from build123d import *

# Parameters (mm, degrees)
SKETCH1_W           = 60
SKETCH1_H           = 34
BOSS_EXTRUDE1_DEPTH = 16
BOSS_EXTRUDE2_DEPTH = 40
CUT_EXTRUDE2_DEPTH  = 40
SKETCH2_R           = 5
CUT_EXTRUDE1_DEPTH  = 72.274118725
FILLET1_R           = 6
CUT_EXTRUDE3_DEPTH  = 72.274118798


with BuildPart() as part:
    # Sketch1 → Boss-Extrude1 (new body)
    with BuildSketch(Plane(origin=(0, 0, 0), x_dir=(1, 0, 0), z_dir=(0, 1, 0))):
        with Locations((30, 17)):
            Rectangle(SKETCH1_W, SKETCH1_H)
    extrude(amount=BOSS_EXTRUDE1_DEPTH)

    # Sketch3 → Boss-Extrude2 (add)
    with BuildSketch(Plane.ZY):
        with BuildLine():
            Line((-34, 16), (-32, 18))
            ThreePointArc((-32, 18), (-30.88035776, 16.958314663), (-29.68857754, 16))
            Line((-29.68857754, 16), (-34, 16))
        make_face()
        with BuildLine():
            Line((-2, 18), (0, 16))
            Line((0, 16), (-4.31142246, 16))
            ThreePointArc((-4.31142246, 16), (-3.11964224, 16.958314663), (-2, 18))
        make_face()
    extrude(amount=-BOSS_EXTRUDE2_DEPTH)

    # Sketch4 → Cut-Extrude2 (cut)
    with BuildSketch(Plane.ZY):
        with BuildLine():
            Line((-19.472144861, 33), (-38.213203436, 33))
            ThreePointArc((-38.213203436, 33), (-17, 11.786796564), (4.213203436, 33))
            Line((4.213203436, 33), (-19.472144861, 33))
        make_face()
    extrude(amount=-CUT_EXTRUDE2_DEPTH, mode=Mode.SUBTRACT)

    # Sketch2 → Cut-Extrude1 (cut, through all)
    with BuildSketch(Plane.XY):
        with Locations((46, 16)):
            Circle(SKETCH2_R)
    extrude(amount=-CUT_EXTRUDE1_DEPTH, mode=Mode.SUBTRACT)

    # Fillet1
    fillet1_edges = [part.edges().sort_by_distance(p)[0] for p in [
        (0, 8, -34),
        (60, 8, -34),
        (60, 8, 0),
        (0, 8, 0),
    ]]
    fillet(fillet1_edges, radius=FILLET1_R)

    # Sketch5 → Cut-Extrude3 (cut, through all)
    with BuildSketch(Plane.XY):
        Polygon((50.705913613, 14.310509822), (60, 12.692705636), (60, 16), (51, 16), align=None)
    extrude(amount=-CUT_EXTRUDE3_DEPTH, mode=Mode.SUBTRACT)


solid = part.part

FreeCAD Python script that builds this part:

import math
import FreeCAD as App
import Part
import Sketcher
Q = App.Units.Quantity


def edges_at(feature, points):
    """Names of the edges that pass closest to the given points."""
    edges = feature.Shape.Edges
    near = lambda p: min(range(len(edges)), key=lambda i: edges[i].distToShape(Part.Vertex(*p))[0])
    return sorted({f"Edge{near(p) + 1}" for p in points})


def add_polygon(sketch, points):
    """Adds a closed chain of lines whose ends are joined by coincident constraints."""
    first, n = sketch.GeometryCount, len(points)
    for a, b in zip(points, points[1:] + points[:1]):
        sketch.addGeometry(Part.LineSegment(App.Vector(*a, 0), App.Vector(*b, 0)), False)
    for i in range(n):
        sketch.addConstraint(Sketcher.Constraint("Coincident", first + i, 2, first + (i + 1) % n, 1))

doc = App.newDocument("Part")
body = doc.addObject("PartDesign::Body", "Body")

# Sketch on XZ plane
sketch1 = doc.addObject("Sketcher::SketchObject", "Sketch")
body.addObject(sketch1)
sketch1.AttachmentSupport = (doc.XZ_Plane, [""])
sketch1.MapMode = "FlatFace"
add_polygon(sketch1, [(0, -34), (0, 0), (60, 0), (60, -34)])  # lines 0-3
sketch1.addConstraint([
    Sketcher.Constraint("Vertical", 0),
    Sketcher.Constraint("Horizontal", 1),
    Sketcher.Constraint("Vertical", 2),
    Sketcher.Constraint("Horizontal", 3),
    Sketcher.Constraint("Coincident", 0, 2, -1, 1),
    Sketcher.Constraint("DistanceX", 1, 1, 1, 2, Q("60 mm")),
    Sketcher.Constraint("DistanceY", 0, 1, 0, 2, Q("34 mm")),
])
pad1 = doc.addObject("PartDesign::Pad", "Pad")
body.addObject(pad1)
pad1.Profile = sketch1
pad1.Length = 16
pad1.Reversed = True

# Sketch on YZ plane
sketch2 = doc.addObject("Sketcher::SketchObject", "Sketch001")
body.addObject(sketch2)
sketch2.AttachmentSupport = (doc.YZ_Plane, [""])
sketch2.MapMode = "FlatFace"
sketch2.addGeometry([
    Part.LineSegment(App.Vector(18, -32, 0), App.Vector(16, -34, 0)),  # 0
    Part.LineSegment(App.Vector(16, -34, 0), App.Vector(16, -29.7, 0)),  # 1
    Part.ArcOfCircle(Part.Circle(App.Vector(33, -17, 0), App.Vector(0, 0, 1), 21.2), math.radians(-143.26), math.radians(-135)),  # 2
    Part.LineSegment(App.Vector(16, 0, 0), App.Vector(18, -2, 0)),  # 3
    Part.ArcOfCircle(Part.Circle(App.Vector(33, -17, 0), App.Vector(0, 0, 1), 21.2), math.radians(135), math.radians(143.26)),  # 4
    Part.LineSegment(App.Vector(16, -4.3, 0), App.Vector(16, 0, 0)),  # 5
], False)
sketch2.addConstraint([
    Sketcher.Constraint("Coincident", 0, 2, 1, 1),
    Sketcher.Constraint("Coincident", 1, 2, 2, 1),
    Sketcher.Constraint("Coincident", 2, 2, 0, 1),
    Sketcher.Constraint("Coincident", 3, 2, 4, 1),
    Sketcher.Constraint("Coincident", 4, 2, 5, 1),
    Sketcher.Constraint("Coincident", 5, 2, 3, 1),
    Sketcher.Constraint("Vertical", 1),
    Sketcher.Constraint("Vertical", 5),
    Sketcher.Constraint("Coincident", 4, 3, 2, 3),
    Sketcher.Constraint("Equal", 2, 4),
    Sketcher.Constraint("PointOnObject", 5, 2, -1),
    Sketcher.Constraint("Perpendicular", 0, 3),
    Sketcher.Constraint("Vertical", 2, 2, 3, 2),
    Sketcher.Constraint("Vertical", 1, 2, 4, 2),
    Sketcher.Constraint("Equal", 1, 5),
    Sketcher.Constraint("DistanceX", -1, 1, 2, 3, Q("33 mm")),
    Sketcher.Constraint("DistanceY", 2, 3, -1, 1, Q("17 mm")),
    Sketcher.Constraint("DistanceX", -1, 1, 0, 2, Q("16 mm")),
    Sketcher.Constraint("DistanceX", -1, 1, 2, 2, Q("18 mm")),
])
pad2 = doc.addObject("PartDesign::Pad", "Pad001")
body.addObject(pad2)
pad2.Profile = sketch2
pad2.Length = 40

# Sketch on YZ plane
sketch3 = doc.addObject("Sketcher::SketchObject", "Sketch002")
body.addObject(sketch3)
sketch3.AttachmentSupport = (doc.YZ_Plane, [""])
sketch3.MapMode = "FlatFace"
sketch3.addGeometry([
    Part.ArcOfCircle(Part.Circle(App.Vector(33, -17, 0), App.Vector(0, 0, 1), 21), math.radians(90), math.radians(270)),
    Part.LineSegment(App.Vector(33, 4, 0), App.Vector(33, -38, 0)),
], False)
sketch3.addConstraint([
    Sketcher.Constraint("Coincident", 0, 1, 1, 1),
    Sketcher.Constraint("Coincident", 1, 2, 0, 2),
    Sketcher.Constraint("Vertical", 1),
    Sketcher.Constraint("DistanceX", -1, 1, 0, 3, Q("33 mm")),
    Sketcher.Constraint("DistanceY", 0, 3, -1, 1, Q("17 mm")),
    Sketcher.Constraint("DistanceX", -1, 1, 0, 1, Q("33 mm")),
    Sketcher.Constraint("Radius", 0, Q("21.213203 mm")),
])
pocket1 = doc.addObject("PartDesign::Pocket", "Pocket")
body.addObject(pocket1)
pocket1.Profile = sketch3
pocket1.Length = 40
pocket1.Reversed = True

# Sketch on XY plane
sketch4 = doc.addObject("Sketcher::SketchObject", "Sketch003")
body.addObject(sketch4)
sketch4.AttachmentSupport = (doc.XY_Plane, [""])
sketch4.MapMode = "FlatFace"
sketch4.addGeometry(Part.Circle(App.Vector(46, 16, 0), App.Vector(0, 0, 1), 5), False)
sketch4.addConstraint([
    Sketcher.Constraint("Diameter", 0, Q("10 mm")),
    Sketcher.Constraint("DistanceX", -1, 1, 0, 3, Q("46 mm")),
    Sketcher.Constraint("DistanceY", -1, 1, 0, 3, Q("16 mm")),
])
pocket2 = doc.addObject("PartDesign::Pocket", "Pocket001")
body.addObject(pocket2)
pocket2.Profile = sketch4
pocket2.Type = "ThroughAll"
doc.recompute()

fillet = doc.addObject("PartDesign::Fillet", "Fillet")
body.addObject(fillet)
fillet.Base = (pocket2, edges_at(pocket2, [
    (0, 8, -34),
    (60, 8, -34),
    (60, 8, 0),
    (0, 8, 0),
]))
fillet.Radius = 6

# Sketch on XY plane
sketch5 = doc.addObject("Sketcher::SketchObject", "Sketch004")
body.addObject(sketch5)
sketch5.AttachmentSupport = (doc.XY_Plane, [""])
sketch5.MapMode = "FlatFace"
add_polygon(sketch5, [(50.7, 14.3), (60, 12.7), (60, 16), (51, 16)])  # lines 0-3
sketch5.addConstraint([
    Sketcher.Constraint("Vertical", 1),
    Sketcher.Constraint("Horizontal", 2),
    Sketcher.Constraint("Perpendicular", 0, 3),
    Sketcher.Constraint("DistanceX", 2, 2, 2, 1, Q("9 mm")),
    Sketcher.Constraint("DistanceX", -1, 1, 0, 2, Q("60 mm")),
    Sketcher.Constraint("DistanceY", -1, 1, 1, 2, Q("16 mm")),
    Sketcher.Constraint("Distance", 0, Q("9.43384 mm")),
    Sketcher.Constraint("DistanceY", 1, 1, 1, 2, Q("3.307294 mm")),
])
pocket3 = doc.addObject("PartDesign::Pocket", "Pocket002")
body.addObject(pocket3)
pocket3.Profile = sketch5
pocket3.Type = "ThroughAll"

doc.recompute()
